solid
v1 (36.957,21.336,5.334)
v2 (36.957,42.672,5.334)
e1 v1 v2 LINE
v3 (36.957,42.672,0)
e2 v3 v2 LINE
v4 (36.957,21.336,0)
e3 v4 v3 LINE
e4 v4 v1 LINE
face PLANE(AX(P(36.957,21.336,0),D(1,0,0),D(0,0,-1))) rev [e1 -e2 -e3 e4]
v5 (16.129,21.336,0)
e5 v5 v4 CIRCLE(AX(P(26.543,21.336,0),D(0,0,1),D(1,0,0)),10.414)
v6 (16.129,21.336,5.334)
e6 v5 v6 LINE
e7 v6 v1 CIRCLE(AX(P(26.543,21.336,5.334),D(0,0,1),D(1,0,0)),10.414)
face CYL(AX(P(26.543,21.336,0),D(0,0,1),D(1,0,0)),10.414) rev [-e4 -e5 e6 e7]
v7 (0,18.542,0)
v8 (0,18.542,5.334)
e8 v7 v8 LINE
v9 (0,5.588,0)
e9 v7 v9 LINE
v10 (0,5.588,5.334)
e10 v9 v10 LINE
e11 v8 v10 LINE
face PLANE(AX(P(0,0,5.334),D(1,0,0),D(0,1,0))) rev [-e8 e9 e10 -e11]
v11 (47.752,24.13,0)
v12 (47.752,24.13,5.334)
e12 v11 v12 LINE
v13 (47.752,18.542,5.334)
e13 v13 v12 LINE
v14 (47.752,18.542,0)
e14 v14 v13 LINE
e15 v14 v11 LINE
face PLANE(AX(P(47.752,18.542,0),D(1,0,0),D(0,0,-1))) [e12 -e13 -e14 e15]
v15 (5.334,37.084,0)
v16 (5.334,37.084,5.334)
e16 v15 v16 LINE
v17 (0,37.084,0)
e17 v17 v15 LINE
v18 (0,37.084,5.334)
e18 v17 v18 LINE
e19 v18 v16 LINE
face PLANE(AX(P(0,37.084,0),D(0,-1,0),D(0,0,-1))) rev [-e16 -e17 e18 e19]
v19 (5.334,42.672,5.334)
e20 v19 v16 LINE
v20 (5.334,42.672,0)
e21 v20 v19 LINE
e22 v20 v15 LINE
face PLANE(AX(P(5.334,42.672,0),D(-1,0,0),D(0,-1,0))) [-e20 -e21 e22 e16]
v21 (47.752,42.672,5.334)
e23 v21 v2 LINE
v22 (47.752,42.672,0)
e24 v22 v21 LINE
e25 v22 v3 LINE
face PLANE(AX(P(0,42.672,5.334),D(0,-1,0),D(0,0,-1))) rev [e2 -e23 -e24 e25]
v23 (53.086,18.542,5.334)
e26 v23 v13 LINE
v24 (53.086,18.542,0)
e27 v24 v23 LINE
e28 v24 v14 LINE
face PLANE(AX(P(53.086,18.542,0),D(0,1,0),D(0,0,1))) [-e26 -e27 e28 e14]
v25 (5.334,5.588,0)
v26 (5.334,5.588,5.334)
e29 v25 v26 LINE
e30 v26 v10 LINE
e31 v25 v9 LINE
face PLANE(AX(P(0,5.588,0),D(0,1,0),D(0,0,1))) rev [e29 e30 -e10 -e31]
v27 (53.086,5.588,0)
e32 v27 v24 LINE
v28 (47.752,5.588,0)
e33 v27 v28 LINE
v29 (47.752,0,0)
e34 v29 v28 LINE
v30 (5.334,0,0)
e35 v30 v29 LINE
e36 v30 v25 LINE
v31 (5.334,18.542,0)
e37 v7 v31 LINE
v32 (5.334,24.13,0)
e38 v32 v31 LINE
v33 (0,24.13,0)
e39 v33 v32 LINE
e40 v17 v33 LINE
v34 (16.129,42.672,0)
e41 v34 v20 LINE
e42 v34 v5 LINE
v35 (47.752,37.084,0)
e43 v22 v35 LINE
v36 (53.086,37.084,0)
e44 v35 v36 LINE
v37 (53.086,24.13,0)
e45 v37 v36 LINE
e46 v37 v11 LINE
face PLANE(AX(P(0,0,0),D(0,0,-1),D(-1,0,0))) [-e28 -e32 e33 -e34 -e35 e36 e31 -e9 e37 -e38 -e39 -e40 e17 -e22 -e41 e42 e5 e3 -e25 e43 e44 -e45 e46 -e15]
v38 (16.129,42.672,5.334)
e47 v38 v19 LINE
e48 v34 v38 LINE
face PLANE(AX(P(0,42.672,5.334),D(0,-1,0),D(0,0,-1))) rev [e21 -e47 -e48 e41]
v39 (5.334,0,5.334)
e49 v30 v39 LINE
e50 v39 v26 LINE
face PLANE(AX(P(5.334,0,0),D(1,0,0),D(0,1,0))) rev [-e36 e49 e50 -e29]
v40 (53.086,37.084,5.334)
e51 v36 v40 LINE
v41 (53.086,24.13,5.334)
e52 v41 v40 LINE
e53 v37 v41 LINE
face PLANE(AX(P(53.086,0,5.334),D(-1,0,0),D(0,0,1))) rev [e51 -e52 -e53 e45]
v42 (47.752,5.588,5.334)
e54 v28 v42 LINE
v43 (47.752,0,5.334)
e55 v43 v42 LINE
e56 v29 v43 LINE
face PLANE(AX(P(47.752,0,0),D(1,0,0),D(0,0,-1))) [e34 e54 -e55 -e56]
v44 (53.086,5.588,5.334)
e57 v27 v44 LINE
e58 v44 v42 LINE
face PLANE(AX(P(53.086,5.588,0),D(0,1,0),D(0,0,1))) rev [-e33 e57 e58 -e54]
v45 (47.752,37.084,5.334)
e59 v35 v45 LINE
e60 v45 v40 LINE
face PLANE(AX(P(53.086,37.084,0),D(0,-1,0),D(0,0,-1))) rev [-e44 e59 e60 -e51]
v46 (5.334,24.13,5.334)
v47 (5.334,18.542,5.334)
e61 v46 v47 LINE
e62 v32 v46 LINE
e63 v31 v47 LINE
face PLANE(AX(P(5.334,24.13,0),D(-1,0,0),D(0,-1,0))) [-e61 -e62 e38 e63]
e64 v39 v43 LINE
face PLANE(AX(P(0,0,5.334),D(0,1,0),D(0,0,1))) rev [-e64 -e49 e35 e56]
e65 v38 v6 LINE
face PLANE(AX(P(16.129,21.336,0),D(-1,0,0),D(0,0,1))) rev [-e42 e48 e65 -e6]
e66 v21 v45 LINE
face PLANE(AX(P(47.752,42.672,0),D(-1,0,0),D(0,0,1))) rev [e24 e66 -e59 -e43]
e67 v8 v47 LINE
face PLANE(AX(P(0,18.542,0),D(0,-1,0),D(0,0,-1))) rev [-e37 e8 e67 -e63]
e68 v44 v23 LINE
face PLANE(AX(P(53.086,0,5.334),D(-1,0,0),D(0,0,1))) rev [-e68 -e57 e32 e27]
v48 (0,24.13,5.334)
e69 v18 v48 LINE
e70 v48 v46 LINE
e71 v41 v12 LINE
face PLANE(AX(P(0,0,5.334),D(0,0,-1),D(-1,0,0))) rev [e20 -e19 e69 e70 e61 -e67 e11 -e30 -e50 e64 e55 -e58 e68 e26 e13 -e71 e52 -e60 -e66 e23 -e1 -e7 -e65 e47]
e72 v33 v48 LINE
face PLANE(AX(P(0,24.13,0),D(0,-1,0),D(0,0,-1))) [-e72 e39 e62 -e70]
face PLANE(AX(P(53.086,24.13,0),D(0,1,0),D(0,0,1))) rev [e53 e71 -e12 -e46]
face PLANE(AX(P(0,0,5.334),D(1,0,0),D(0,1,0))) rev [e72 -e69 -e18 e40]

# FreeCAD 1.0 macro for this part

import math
import FreeCAD as App
import Part
import Sketcher

V = App.Vector
Q = App.Units.Quantity


def add_polygon(sketch, points):
    """Adds a closed chain of lines whose ends are joined by coincident constraints."""
    first, n = sketch.GeometryCount, len(points)
    for a, b in zip(points, points[1:] + points[:1]):
        sketch.addGeometry(Part.LineSegment(App.Vector(*a, 0), App.Vector(*b, 0)), False)
    for i in range(n):
        sketch.addConstraint(Sketcher.Constraint("Coincident", first + i, 2, first + (i + 1) % n, 1))

doc = App.newDocument("Part")
params = doc.addObject("Spreadsheet::Sheet", "Params")
for row, (alias, value) in enumerate([
    ("sketch1_width", "2.09 in"),
    ("sketch1_height", "1.68 in"),
    ("pad1_length", "0.21 in"),
    ("sketch2_width", "0.21 in"),
    ("sketch2_height", "0.22 in"),
    ("sketch3_width", "0.21 in"),
    ("sketch3_height", "0.22 in"),
    ("sketch4_width", "0.21 in"),
    ("sketch4_height", "0.22 in"),
    ("sketch5_width", "0.21 in"),
    ("sketch5_height", "0.22 in"),
    ("sketch6_width", "0.21 in"),
    ("sketch6_height", "0.22 in"),
    ("sketch7_radius", "0.41 in"),
    ("sketch7_height", "0.84 in"),
], start=1):
    params.set(f"A{row}", alias)
    params.set(f"B{row}", "=" + value)
    params.setAlias(f"B{row}", alias)

body = doc.addObject("PartDesign::Body", "Body")

sketch1 = doc.addObject("Sketcher::SketchObject", "Sketch")
body.addObject(sketch1)
sketch1.AttachmentSupport = (doc.XY_Plane, [""])
sketch1.MapMode = "FlatFace"
add_polygon(sketch1, [(0, 43), (0, 0), (53, 0), (53, 43)])
sketch1.addConstraint(Sketcher.Constraint("Vertical", 0))
sketch1.addConstraint(Sketcher.Constraint("Horizontal", 1))
sketch1.addConstraint(Sketcher.Constraint("Vertical", 2))
sketch1.addConstraint(Sketcher.Constraint("Horizontal", 3))
sketch1.addConstraint(Sketcher.Constraint("Coincident", 0, 2, -1, 1))
sketch1.addConstraint(Sketcher.Constraint("DistanceX", 1, 1, 1, 2, Q("2.09 in")))
sketch1.addConstraint(Sketcher.Constraint("DistanceY", 0, 2, 0, 1, Q("1.68 in")))
sketch1.setExpression("Constraints[9]", "Params.sketch1_width")
sketch1.setExpression("Constraints[10]", "Params.sketch1_height")
pad1 = doc.addObject("PartDesign::Pad", "Pad")
body.addObject(pad1)
pad1.Profile = sketch1
pad1.setExpression("Length", "Params.pad1_length")

sketch2 = doc.addObject("Sketcher::SketchObject", "Sketch001")
body.addObject(sketch2)
sketch2.AttachmentSupport = (doc.XY_Plane, [""])
sketch2.MapMode = "FlatFace"
sketch2.AttachmentOffset = App.Placement(V(0, 0, 0.21 * 25.4), App.Rotation())
add_polygon(sketch2, [(0, 43), (0, 37), (5, 37), (5, 43)])
sketch2.addConstraint(Sketcher.Constraint("Vertical", 0))
sketch2.addConstraint(Sketcher.Constraint("Horizontal", 1))
sketch2.addConstraint(Sketcher.Constraint("Vertical", 2))
sketch2.addConstraint(Sketcher.Constraint("Horizontal", 3))
sketch2.addConstraint(Sketcher.Constraint("PointOnObject", 0, 2, -2))
sketch2.addConstraint(Sketcher.Constraint("DistanceX", 1, 1, 1, 2, Q("0.21 in")))
sketch2.addConstraint(Sketcher.Constraint("DistanceY", 0, 2, 0, 1, Q("0.22 in")))
sketch2.addConstraint(Sketcher.Constraint("DistanceY", -1, 1, 0, 2, Q("1.46 in")))
sketch2.setExpression("Constraints[9]", "Params.sketch2_width")
sketch2.setExpression("Constraints[10]", "Params.sketch2_height")
pocket1 = doc.addObject("PartDesign::Pocket", "Pocket")
body.addObject(pocket1)
pocket1.Profile = sketch2
pocket1.Type = "ThroughAll"

sketch3 = doc.addObject("Sketcher::SketchObject", "Sketch002")
body.addObject(sketch3)
sketch3.AttachmentSupport = (doc.XY_Plane, [""])
sketch3.MapMode = "FlatFace"
sketch3.AttachmentOffset = App.Placement(V(0, 0, 0.21 * 25.4), App.Rotation())
add_polygon(sketch3, [(0, 24), (0, 19), (5, 19), (5, 24)])
sketch3.addConstraint(Sketcher.Constraint("Vertical", 0))
sketch3.addConstraint(Sketcher.Constraint("Horizontal", 1))
sketch3.addConstraint(Sketcher.Constraint("Vertical", 2))
sketch3.addConstraint(Sketcher.Constraint("Horizontal", 3))
sketch3.addConstraint(Sketcher.Constraint("PointOnObject", 0, 2, -2))
sketch3.addConstraint(Sketcher.Constraint("DistanceX", 1, 1, 1, 2, Q("0.21 in")))
sketch3.addConstraint(Sketcher.Constraint("DistanceY", 0, 2, 0, 1, Q("0.22 in")))
sketch3.addConstraint(Sketcher.Constraint("DistanceY", -1, 1, 0, 2, Q("0.73 in")))
sketch3.setExpression("Constraints[9]", "Params.sketch3_width")
sketch3.setExpression("Constraints[10]", "Params.sketch3_height")
pocket2 = doc.addObject("PartDesign::Pocket", "Pocket001")
body.addObject(pocket2)
pocket2.Profile = sketch3
pocket2.Type = "ThroughAll"

sketch4 = doc.addObject("Sketcher::SketchObject", "Sketch003")
body.addObject(sketch4)
sketch4.AttachmentSupport = (doc.XY_Plane, [""])
sketch4.MapMode = "FlatFace"
sketch4.AttachmentOffset = App.Placement(V(0, 0, 0.21 * 25.4), App.Rotation())
add_polygon(sketch4, [(0, 6), (0, 0), (5, 0), (5, 6)])
sketch4.addConstraint(Sketcher.Constraint("Vertical", 0))
sketch4.addConstraint(Sketcher.Constraint("Horizontal", 1))
sketch4.addConstraint(Sketcher.Constraint("Vertical", 2))
sketch4.addConstraint(Sketcher.Constraint("Horizontal", 3))
sketch4.addConstraint(Sketcher.Constraint("Coincident", 0, 2, -1, 1))
sketch4.addConstraint(Sketcher.Constraint("DistanceX", 1, 1, 1, 2, Q("0.21 in")))
sketch4.addConstraint(Sketcher.Constraint("DistanceY", 0, 2, 0, 1, Q("0.22 in")))
sketch4.setExpression("Constraints[9]", "Params.sketch4_width")
sketch4.setExpression("Constraints[10]", "Params.sketch4_height")
pocket3 = doc.addObject("PartDesign::Pocket", "Pocket002")
body.addObject(pocket3)
pocket3.Profile = sketch4
pocket3.Type = "ThroughAll"

sketch5 = doc.addObject("Sketcher::SketchObject", "Sketch004")
body.addObject(sketch5)
sketch5.AttachmentSupport = (doc.XY_Plane, [""])
sketch5.MapMode = "FlatFace"
sketch5.AttachmentOffset = App.Placement(V(0, 0, 0.21 * 25.4), App.Rotation())
add_polygon(sketch5, [(48, 43), (48, 37), (53, 37), (53, 43)])
sketch5.addConstraint(Sketcher.Constraint("Vertical", 0))
sketch5.addConstraint(Sketcher.Constraint("Horizontal", 1))
sketch5.addConstraint(Sketcher.Constraint("Vertical", 2))
sketch5.addConstraint(Sketcher.Constraint("Horizontal", 3))
sketch5.addConstraint(Sketcher.Constraint("DistanceX", 1, 1, 1, 2, Q("0.21 in")))
sketch5.addConstraint(Sketcher.Constraint("DistanceY", 0, 2, 0, 1, Q("0.22 in")))
sketch5.addConstraint(Sketcher.Constraint("DistanceX", -1, 1, 0, 2, Q("1.88 in")))
sketch5.addConstraint(Sketcher.Constraint("DistanceY", -1, 1, 0, 2, Q("1.46 in")))
sketch5.setExpression("Constraints[8]", "Params.sketch5_width")
sketch5.setExpression("Constraints[9]", "Params.sketch5_height")
pocket4 = doc.addObject("PartDesign::Pocket", "Pocket003")
body.addObject(pocket4)
pocket4.Profile = sketch5
pocket4.Type = "ThroughAll"

sketch6 = doc.addObject("Sketcher::SketchObject", "Sketch005")
body.addObject(sketch6)
sketch6.AttachmentSupport = (doc.XY_Plane, [""])
sketch6.MapMode = "FlatFace"
sketch6.AttachmentOffset = App.Placement(V(0, 0, 0.21 * 25.4), App.Rotation())
add_polygon(sketch6, [(48, 24), (48, 19), (53, 19), (53, 24)])
add_polygon(sketch6, [(48, 6), (48, 0), (53, 0), (53, 6)])
sketch6.addConstraint(Sketcher.Constraint("Vertical", 0))
sketch6.addConstraint(Sketcher.Constraint("Horizontal", 1))
sketch6.addConstraint(Sketcher.Constraint("Vertical", 2))
sketch6.addConstraint(Sketcher.Constraint("Horizontal", 3))
sketch6.addConstraint(Sketcher.Constraint("Vertical", 4))
sketch6.addConstraint(Sketcher.Constraint("Horizontal", 5))
sketch6.addConstraint(Sketcher.Constraint("Vertical", 6))
sketch6.addConstraint(Sketcher.Constraint("Horizontal", 7))
sketch6.addConstraint(Sketcher.Constraint("PointOnObject", 4, 2, -1))
sketch6.addConstraint(Sketcher.Constraint("Vertical", 3, 2, 4, 2))
sketch6.addConstraint(Sketcher.Constraint("Vertical", 2, 2, 5, 2))
sketch6.addConstraint(Sketcher.Constraint("Equal", 2, 4))
sketch6.addConstraint(Sketcher.Constraint("DistanceX", 1, 1, 1, 2, Q("0.21 in")))
sketch6.addConstraint(Sketcher.Constraint("DistanceY", 0, 2, 0, 1, Q("0.22 in")))
sketch6.addConstraint(Sketcher.Constraint("DistanceX", -1, 1, 0, 2, Q("1.88 in")))
sketch6.addConstraint(Sketcher.Constraint("DistanceY", -1, 1, 0, 2, Q("0.73 in")))
sketch6.setExpression("Constraints[20]", "Params.sketch6_width")
sketch6.setExpression("Constraints[21]", "Params.sketch6_height")
pocket5 = doc.addObject("PartDesign::Pocket", "Pocket004")
body.addObject(pocket5)
pocket5.Profile = sketch6
pocket5.Type = "ThroughAll"

sketch7 = doc.addObject("Sketcher::SketchObject", "Sketch006")
body.addObject(sketch7)
sketch7.AttachmentSupport = (doc.XY_Plane, [""])
sketch7.MapMode = "FlatFace"
sketch7.AttachmentOffset = App.Placement(V(0, 0, 0.21 * 25.4), App.Rotation())
sketch7.addGeometry(Part.LineSegment(V(16, 43, 0), V(16, 21, 0)), False)
sketch7.addGeometry(Part.ArcOfCircle(Part.Circle(V(27, 21, 0), V(0, 0, 1), 10), math.radians(180), math.radians(360)), False)
sketch7.addGeometry(Part.LineSegment(V(37, 21, 0), V(37, 43, 0)), False)
sketch7.addGeometry(Part.LineSegment(V(37, 43, 0), V(16, 43, 0)), False)
sketch7.addConstraint(Sketcher.Constraint("Tangent", 0, 2, 1, 1))
sketch7.addConstraint(Sketcher.Constraint("Tangent", 1, 2, 2, 1))
sketch7.addConstraint(Sketcher.Constraint("Coincident", 2, 2, 3, 1))
sketch7.addConstraint(Sketcher.Constraint("Coincident", 3, 2, 0, 1))
sketch7.addConstraint(Sketcher.Constraint("Vertical", 0))
sketch7.addConstraint(Sketcher.Constraint("Vertical", 2))
sketch7.addConstraint(Sketcher.Constraint("Horizontal", 3))
sketch7.addConstraint(Sketcher.Constraint("Radius", 1, Q("0.41 in")))
sketch7.addConstraint(Sketcher.Constraint("DistanceY", 0, 2, 0, 1, Q("0.84 in")))
sketch7.addConstraint(Sketcher.Constraint("DistanceY", -1, 1, 1, 3, Q("0.84 in")))
sketch7.addConstraint(Sketcher.Constraint("DistanceX", -1, 1, 1, 3, Q("1.045 in")))
sketch7.setExpression("Constraints[7]", "Params.sketch7_radius")
sketch7.setExpression("Constraints[8]", "Params.sketch7_height")
pocket6 = doc.addObject("PartDesign::Pocket", "Pocket005")
body.addObject(pocket6)
pocket6.Profile = sketch7
pocket6.Type = "ThroughAll"

doc.recompute()
